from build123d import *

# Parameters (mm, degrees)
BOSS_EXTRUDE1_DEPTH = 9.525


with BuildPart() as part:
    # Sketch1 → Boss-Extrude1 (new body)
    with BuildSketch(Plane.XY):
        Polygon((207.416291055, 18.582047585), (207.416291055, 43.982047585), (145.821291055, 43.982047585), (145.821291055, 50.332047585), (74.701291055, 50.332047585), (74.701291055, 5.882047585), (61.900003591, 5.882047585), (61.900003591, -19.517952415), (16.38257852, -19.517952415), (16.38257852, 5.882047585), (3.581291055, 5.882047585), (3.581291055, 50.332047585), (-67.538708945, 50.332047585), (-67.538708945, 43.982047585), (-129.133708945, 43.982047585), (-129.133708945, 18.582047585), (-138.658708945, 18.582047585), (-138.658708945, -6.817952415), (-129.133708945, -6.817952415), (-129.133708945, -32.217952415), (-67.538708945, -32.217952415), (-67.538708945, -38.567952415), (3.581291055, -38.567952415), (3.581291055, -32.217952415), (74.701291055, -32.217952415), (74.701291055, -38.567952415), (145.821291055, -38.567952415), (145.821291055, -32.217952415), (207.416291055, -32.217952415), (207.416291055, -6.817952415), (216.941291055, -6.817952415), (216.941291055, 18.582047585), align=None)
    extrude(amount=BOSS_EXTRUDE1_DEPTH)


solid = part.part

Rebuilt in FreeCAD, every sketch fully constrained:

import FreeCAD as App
import Part
import Sketcher

V = App.Vector
Q = App.Units.Quantity


def add_polygon(sketch, points):
    """Adds a closed chain of lines whose ends are joined by coincident constraints."""
    first, n = sketch.GeometryCount, len(points)
    for a, b in zip(points, points[1:] + points[:1]):
        sketch.addGeometry(Part.LineSegment(App.Vector(*a, 0), App.Vector(*b, 0)), False)
    for i in range(n):
        sketch.addConstraint(Sketcher.Constraint("Coincident", first + i, 2, first + (i + 1) % n, 1))

doc = App.newDocument("Part")
body = doc.addObject("PartDesign::Body", "Body")

# Sketch on XY plane
sketch1 = body.newObject("Sketcher::SketchObject", "Sketch")
sketch1.AttachmentSupport = (doc.getObject("XY_Plane"), [""])
sketch1.MapMode = "FlatFace"
add_polygon(sketch1, [(207, 19), (207, 44), (146, 44), (146, 50), (75, 50), (75, 6), (62, 6), (62, -20), (16, -20), (16, 6), (4, 6), (4, 50), (-68, 50), (-68, 44), (-129, 44), (-129, 19), (-139, 19), (-139, -7), (-129, -7), (-129, -32), (-68, -32), (-68, -39), (4, -39), (4, -32), (75, -32), (75, -39), (146, -39), (146, -32), (207, -32), (207, -7), (217, -7), (217, 19)])  # lines 0-31
sketch1.addConstraint([
    Sketcher.Constraint("Vertical", 0),
    Sketcher.Constraint("Horizontal", 1),
    Sketcher.Constraint("Vertical", 2),
    Sketcher.Constraint("Horizontal", 3),
    Sketcher.Constraint("Vertical", 4),
    Sketcher.Constraint("Horizontal", 5),
    Sketcher.Constraint("Vertical", 6),
    Sketcher.Constraint("Horizontal", 7),
    Sketcher.Constraint("Vertical", 8),
    Sketcher.Constraint("Horizontal", 9),
    Sketcher.Constraint("Vertical", 10),
    Sketcher.Constraint("Horizontal", 11),
    Sketcher.Constraint("Vertical", 12),
    Sketcher.Constraint("Horizontal", 13),
    Sketcher.Constraint("Vertical", 14),
    Sketcher.Constraint("Horizontal", 15),
    Sketcher.Constraint("Vertical", 16),
    Sketcher.Constraint("Horizontal", 17),
    Sketcher.Constraint("Vertical", 18),
    Sketcher.Constraint("Horizontal", 19),
    Sketcher.Constraint("Vertical", 20),
    Sketcher.Constraint("Horizontal", 21),
    Sketcher.Constraint("Vertical", 22),
    Sketcher.Constraint("Horizontal", 23),
    Sketcher.Constraint("Vertical", 24),
    Sketcher.Constraint("Horizontal", 25),
    Sketcher.Constraint("Vertical", 26),
    Sketcher.Constraint("Horizontal", 27),
    Sketcher.Constraint("Vertical", 28),
    Sketcher.Constraint("Horizontal", 29),
    Sketcher.Constraint("Vertical", 30),
    Sketcher.Constraint("Horizontal", 31),
    Sketcher.Constraint("Horizontal", 5, 2, 8, 2),
    Sketcher.Constraint("Horizontal", 3, 2, 10, 2),
    Sketcher.Constraint("Horizontal", 1, 2, 12, 2),
    Sketcher.Constraint("Horizontal", 19, 2, 22, 2),
    Sketcher.Constraint("Horizontal", 21, 2, 24, 2),
    Sketcher.Constraint("Horizontal", 23, 2, 26, 2),
    Sketcher.Constraint("Horizontal", 17, 2, 28, 2),
    Sketcher.Constraint("Horizontal", 15, 2, 30, 2),
    Sketcher.Constraint("Vertical", 14, 2, 17, 2),
    Sketcher.Constraint("Vertical", 12, 2, 19, 2),
    Sketcher.Constraint("Vertical", 10, 2, 21, 2),
    Sketcher.Constraint("Vertical", 4, 2, 23, 2),
    Sketcher.Constraint("Vertical", 2, 2, 25, 2),
    Sketcher.Constraint("Vertical", 0, 2, 27, 2),
    Sketcher.Constraint("Equal", 5, 9),
    Sketcher.Constraint("Equal", 3, 11),
    Sketcher.Constraint("Equal", 1, 13),
    Sketcher.Constraint("Equal", 21, 23),
    Sketcher.Constraint("Equal", 17, 29),
    Sketcher.Constraint("Equal", 0, 6),
    Sketcher.Constraint("Equal", 14, 16),
    Sketcher.Constraint("Equal", 16, 18),
    Sketcher.Constraint("Equal", 12, 20),
    Sketcher.Constraint("DistanceY", 0, 1, 0, 2, Q("1 in")),
    Sketcher.Constraint("DistanceX", 3, 2, 3, 1, Q("2.8 in")),
    Sketcher.Constraint("DistanceY", 2, 1, 2, 2, Q("0.25 in")),
    Sketcher.Constraint("DistanceY", 4, 2, 4, 1, Q("1.75 in")),
    Sketcher.Constraint("DistanceX", 15, 2, 12, 2, Q("2.8 in")),
    Sketcher.Constraint("DistanceX", 1, 2, 1, 1, Q("2.425 in")),
    Sketcher.Constraint("DistanceX", 5, 2, 5, 1, 12.801287),
    Sketcher.Constraint("DistanceX", -1, 1, 0, 2, 207.416291),
    Sketcher.Constraint("DistanceY", -1, 1, 0, 2, 43.982048),
])
pad1 = body.newObject("PartDesign::Pad", "Pad")
pad1.Profile = sketch1
pad1.Length = Q("0.375 in")

doc.recompute()
